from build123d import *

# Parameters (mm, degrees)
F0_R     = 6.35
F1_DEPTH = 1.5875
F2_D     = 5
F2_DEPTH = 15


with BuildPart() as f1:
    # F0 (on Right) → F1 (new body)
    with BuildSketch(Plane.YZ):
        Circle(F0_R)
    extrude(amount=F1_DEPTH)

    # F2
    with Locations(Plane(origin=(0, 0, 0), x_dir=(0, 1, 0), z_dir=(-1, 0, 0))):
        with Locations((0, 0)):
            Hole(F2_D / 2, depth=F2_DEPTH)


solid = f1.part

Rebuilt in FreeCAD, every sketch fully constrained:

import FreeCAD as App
import Part
import Sketcher

V = App.Vector

doc = App.newDocument("Part")
body = doc.addObject("PartDesign::Body", "Body")

# Sketch on YZ plane
sketch1 = doc.addObject("Sketcher::SketchObject", "Sketch")
body.addObject(sketch1)
sketch1.AttachmentSupport = (doc.YZ_Plane, [""])
sketch1.MapMode = "FlatFace"
sketch1.addGeometry(Part.Circle(V(0, 0, 0), V(0, 0, 1), 6), False)
sketch1.addConstraint([
    Sketcher.Constraint("Coincident", 0, 3, -1, 1),
    Sketcher.Constraint("Diameter", 0, 12.7),
])
pad1 = doc.addObject("PartDesign::Pad", "Pad")
body.addObject(pad1)
pad1.Profile = sketch1
pad1.Length = 1.5875

# Sketch on YZ plane
sketch2 = doc.addObject("Sketcher::SketchObject", "Sketch001")
body.addObject(sketch2)
sketch2.AttachmentSupport = (doc.YZ_Plane, [""])
sketch2.MapMode = "FlatFace"
sketch2.addGeometry(Part.Circle(V(0, 0, 0), V(0, 0, 1), 2.5), False)
sketch2.addConstraint([
    Sketcher.Constraint("Coincident", 0, 3, -1, 1),
    Sketcher.Constraint("Diameter", 0, 5.0),
])
doc.recompute()
hole = doc.addObject("PartDesign::Hole", "Hole")
body.addObject(hole)
hole.Profile = sketch2
hole.ThreadType = "None"
hole.Diameter = 5
hole.DepthType = "Dimension"
hole.Depth = 15
hole.DrillPoint = "Flat"
hole.Reversed = True

doc.recompute()
